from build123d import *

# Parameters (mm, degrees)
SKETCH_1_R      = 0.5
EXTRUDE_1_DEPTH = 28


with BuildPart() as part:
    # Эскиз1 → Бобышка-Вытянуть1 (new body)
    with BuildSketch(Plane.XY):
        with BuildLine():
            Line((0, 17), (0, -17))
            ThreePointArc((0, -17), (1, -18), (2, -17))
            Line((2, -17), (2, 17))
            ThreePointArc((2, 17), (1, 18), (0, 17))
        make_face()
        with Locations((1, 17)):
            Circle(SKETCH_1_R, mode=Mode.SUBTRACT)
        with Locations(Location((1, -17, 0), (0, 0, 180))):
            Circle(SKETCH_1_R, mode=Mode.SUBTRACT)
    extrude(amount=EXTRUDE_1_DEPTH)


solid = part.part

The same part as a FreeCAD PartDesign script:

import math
import FreeCAD as App
import Part
import Sketcher
from FreeCAD import Vector
Q = App.Units.Quantity

doc = App.newDocument("Part")
body = doc.addObject("PartDesign::Body", "Body")

# Sketch on XY plane
sketch1 = body.newObject("Sketcher::SketchObject", "Sketch")
sketch1.AttachmentSupport = (doc.getObject("XY_Plane"), [""])
sketch1.MapMode = "FlatFace"
sketch1.addGeometry([
    Part.LineSegment(Vector(0, 17, 0), Vector(0, -17, 0)),  # 0
    Part.ArcOfCircle(Part.Circle(Vector(1, -17, 0), Vector(0, 0, 1), 1), math.radians(180), math.radians(360)),  # 1
    Part.LineSegment(Vector(2, -17, 0), Vector(2, 17, 0)),  # 2
    Part.ArcOfCircle(Part.Circle(Vector(1, 17, 0), Vector(0, 0, 1), 1), math.radians(0), math.radians(180)),  # 3
    Part.Circle(Vector(1, -17, 0), Vector(0, 0, 1), 0.5),  # 4
    Part.Circle(Vector(1, 17, 0), Vector(0, 0, 1), 0.5),  # 5
], False)
sketch1.addConstraint([
    Sketcher.Constraint("Tangent", 0, 2, 1, 1),
    Sketcher.Constraint("Tangent", 1, 2, 2, 1),
    Sketcher.Constraint("Tangent", 2, 2, 3, 1),
    Sketcher.Constraint("Tangent", 3, 2, 0, 1),
    Sketcher.Constraint("Vertical", 0),
    Sketcher.Constraint("Vertical", 2),
    Sketcher.Constraint("Coincident", 4, 3, 1, 3),
    Sketcher.Constraint("Coincident", 5, 3, 3, 3),
    Sketcher.Constraint("Equal", 4, 5),
    Sketcher.Constraint("Symmetric", 0, 2, 3, 2, -1, 1),
    Sketcher.Constraint("Diameter", 4, Q("1 mm")),
    Sketcher.Constraint("Radius", 1, Q("1 mm")),
    Sketcher.Constraint("DistanceY", 0, 2, 0, 1, Q("34 mm")),
])
pad1 = body.newObject("PartDesign::Pad", "Pad")
pad1.Profile = sketch1
pad1.Length = 28

doc.recompute()
